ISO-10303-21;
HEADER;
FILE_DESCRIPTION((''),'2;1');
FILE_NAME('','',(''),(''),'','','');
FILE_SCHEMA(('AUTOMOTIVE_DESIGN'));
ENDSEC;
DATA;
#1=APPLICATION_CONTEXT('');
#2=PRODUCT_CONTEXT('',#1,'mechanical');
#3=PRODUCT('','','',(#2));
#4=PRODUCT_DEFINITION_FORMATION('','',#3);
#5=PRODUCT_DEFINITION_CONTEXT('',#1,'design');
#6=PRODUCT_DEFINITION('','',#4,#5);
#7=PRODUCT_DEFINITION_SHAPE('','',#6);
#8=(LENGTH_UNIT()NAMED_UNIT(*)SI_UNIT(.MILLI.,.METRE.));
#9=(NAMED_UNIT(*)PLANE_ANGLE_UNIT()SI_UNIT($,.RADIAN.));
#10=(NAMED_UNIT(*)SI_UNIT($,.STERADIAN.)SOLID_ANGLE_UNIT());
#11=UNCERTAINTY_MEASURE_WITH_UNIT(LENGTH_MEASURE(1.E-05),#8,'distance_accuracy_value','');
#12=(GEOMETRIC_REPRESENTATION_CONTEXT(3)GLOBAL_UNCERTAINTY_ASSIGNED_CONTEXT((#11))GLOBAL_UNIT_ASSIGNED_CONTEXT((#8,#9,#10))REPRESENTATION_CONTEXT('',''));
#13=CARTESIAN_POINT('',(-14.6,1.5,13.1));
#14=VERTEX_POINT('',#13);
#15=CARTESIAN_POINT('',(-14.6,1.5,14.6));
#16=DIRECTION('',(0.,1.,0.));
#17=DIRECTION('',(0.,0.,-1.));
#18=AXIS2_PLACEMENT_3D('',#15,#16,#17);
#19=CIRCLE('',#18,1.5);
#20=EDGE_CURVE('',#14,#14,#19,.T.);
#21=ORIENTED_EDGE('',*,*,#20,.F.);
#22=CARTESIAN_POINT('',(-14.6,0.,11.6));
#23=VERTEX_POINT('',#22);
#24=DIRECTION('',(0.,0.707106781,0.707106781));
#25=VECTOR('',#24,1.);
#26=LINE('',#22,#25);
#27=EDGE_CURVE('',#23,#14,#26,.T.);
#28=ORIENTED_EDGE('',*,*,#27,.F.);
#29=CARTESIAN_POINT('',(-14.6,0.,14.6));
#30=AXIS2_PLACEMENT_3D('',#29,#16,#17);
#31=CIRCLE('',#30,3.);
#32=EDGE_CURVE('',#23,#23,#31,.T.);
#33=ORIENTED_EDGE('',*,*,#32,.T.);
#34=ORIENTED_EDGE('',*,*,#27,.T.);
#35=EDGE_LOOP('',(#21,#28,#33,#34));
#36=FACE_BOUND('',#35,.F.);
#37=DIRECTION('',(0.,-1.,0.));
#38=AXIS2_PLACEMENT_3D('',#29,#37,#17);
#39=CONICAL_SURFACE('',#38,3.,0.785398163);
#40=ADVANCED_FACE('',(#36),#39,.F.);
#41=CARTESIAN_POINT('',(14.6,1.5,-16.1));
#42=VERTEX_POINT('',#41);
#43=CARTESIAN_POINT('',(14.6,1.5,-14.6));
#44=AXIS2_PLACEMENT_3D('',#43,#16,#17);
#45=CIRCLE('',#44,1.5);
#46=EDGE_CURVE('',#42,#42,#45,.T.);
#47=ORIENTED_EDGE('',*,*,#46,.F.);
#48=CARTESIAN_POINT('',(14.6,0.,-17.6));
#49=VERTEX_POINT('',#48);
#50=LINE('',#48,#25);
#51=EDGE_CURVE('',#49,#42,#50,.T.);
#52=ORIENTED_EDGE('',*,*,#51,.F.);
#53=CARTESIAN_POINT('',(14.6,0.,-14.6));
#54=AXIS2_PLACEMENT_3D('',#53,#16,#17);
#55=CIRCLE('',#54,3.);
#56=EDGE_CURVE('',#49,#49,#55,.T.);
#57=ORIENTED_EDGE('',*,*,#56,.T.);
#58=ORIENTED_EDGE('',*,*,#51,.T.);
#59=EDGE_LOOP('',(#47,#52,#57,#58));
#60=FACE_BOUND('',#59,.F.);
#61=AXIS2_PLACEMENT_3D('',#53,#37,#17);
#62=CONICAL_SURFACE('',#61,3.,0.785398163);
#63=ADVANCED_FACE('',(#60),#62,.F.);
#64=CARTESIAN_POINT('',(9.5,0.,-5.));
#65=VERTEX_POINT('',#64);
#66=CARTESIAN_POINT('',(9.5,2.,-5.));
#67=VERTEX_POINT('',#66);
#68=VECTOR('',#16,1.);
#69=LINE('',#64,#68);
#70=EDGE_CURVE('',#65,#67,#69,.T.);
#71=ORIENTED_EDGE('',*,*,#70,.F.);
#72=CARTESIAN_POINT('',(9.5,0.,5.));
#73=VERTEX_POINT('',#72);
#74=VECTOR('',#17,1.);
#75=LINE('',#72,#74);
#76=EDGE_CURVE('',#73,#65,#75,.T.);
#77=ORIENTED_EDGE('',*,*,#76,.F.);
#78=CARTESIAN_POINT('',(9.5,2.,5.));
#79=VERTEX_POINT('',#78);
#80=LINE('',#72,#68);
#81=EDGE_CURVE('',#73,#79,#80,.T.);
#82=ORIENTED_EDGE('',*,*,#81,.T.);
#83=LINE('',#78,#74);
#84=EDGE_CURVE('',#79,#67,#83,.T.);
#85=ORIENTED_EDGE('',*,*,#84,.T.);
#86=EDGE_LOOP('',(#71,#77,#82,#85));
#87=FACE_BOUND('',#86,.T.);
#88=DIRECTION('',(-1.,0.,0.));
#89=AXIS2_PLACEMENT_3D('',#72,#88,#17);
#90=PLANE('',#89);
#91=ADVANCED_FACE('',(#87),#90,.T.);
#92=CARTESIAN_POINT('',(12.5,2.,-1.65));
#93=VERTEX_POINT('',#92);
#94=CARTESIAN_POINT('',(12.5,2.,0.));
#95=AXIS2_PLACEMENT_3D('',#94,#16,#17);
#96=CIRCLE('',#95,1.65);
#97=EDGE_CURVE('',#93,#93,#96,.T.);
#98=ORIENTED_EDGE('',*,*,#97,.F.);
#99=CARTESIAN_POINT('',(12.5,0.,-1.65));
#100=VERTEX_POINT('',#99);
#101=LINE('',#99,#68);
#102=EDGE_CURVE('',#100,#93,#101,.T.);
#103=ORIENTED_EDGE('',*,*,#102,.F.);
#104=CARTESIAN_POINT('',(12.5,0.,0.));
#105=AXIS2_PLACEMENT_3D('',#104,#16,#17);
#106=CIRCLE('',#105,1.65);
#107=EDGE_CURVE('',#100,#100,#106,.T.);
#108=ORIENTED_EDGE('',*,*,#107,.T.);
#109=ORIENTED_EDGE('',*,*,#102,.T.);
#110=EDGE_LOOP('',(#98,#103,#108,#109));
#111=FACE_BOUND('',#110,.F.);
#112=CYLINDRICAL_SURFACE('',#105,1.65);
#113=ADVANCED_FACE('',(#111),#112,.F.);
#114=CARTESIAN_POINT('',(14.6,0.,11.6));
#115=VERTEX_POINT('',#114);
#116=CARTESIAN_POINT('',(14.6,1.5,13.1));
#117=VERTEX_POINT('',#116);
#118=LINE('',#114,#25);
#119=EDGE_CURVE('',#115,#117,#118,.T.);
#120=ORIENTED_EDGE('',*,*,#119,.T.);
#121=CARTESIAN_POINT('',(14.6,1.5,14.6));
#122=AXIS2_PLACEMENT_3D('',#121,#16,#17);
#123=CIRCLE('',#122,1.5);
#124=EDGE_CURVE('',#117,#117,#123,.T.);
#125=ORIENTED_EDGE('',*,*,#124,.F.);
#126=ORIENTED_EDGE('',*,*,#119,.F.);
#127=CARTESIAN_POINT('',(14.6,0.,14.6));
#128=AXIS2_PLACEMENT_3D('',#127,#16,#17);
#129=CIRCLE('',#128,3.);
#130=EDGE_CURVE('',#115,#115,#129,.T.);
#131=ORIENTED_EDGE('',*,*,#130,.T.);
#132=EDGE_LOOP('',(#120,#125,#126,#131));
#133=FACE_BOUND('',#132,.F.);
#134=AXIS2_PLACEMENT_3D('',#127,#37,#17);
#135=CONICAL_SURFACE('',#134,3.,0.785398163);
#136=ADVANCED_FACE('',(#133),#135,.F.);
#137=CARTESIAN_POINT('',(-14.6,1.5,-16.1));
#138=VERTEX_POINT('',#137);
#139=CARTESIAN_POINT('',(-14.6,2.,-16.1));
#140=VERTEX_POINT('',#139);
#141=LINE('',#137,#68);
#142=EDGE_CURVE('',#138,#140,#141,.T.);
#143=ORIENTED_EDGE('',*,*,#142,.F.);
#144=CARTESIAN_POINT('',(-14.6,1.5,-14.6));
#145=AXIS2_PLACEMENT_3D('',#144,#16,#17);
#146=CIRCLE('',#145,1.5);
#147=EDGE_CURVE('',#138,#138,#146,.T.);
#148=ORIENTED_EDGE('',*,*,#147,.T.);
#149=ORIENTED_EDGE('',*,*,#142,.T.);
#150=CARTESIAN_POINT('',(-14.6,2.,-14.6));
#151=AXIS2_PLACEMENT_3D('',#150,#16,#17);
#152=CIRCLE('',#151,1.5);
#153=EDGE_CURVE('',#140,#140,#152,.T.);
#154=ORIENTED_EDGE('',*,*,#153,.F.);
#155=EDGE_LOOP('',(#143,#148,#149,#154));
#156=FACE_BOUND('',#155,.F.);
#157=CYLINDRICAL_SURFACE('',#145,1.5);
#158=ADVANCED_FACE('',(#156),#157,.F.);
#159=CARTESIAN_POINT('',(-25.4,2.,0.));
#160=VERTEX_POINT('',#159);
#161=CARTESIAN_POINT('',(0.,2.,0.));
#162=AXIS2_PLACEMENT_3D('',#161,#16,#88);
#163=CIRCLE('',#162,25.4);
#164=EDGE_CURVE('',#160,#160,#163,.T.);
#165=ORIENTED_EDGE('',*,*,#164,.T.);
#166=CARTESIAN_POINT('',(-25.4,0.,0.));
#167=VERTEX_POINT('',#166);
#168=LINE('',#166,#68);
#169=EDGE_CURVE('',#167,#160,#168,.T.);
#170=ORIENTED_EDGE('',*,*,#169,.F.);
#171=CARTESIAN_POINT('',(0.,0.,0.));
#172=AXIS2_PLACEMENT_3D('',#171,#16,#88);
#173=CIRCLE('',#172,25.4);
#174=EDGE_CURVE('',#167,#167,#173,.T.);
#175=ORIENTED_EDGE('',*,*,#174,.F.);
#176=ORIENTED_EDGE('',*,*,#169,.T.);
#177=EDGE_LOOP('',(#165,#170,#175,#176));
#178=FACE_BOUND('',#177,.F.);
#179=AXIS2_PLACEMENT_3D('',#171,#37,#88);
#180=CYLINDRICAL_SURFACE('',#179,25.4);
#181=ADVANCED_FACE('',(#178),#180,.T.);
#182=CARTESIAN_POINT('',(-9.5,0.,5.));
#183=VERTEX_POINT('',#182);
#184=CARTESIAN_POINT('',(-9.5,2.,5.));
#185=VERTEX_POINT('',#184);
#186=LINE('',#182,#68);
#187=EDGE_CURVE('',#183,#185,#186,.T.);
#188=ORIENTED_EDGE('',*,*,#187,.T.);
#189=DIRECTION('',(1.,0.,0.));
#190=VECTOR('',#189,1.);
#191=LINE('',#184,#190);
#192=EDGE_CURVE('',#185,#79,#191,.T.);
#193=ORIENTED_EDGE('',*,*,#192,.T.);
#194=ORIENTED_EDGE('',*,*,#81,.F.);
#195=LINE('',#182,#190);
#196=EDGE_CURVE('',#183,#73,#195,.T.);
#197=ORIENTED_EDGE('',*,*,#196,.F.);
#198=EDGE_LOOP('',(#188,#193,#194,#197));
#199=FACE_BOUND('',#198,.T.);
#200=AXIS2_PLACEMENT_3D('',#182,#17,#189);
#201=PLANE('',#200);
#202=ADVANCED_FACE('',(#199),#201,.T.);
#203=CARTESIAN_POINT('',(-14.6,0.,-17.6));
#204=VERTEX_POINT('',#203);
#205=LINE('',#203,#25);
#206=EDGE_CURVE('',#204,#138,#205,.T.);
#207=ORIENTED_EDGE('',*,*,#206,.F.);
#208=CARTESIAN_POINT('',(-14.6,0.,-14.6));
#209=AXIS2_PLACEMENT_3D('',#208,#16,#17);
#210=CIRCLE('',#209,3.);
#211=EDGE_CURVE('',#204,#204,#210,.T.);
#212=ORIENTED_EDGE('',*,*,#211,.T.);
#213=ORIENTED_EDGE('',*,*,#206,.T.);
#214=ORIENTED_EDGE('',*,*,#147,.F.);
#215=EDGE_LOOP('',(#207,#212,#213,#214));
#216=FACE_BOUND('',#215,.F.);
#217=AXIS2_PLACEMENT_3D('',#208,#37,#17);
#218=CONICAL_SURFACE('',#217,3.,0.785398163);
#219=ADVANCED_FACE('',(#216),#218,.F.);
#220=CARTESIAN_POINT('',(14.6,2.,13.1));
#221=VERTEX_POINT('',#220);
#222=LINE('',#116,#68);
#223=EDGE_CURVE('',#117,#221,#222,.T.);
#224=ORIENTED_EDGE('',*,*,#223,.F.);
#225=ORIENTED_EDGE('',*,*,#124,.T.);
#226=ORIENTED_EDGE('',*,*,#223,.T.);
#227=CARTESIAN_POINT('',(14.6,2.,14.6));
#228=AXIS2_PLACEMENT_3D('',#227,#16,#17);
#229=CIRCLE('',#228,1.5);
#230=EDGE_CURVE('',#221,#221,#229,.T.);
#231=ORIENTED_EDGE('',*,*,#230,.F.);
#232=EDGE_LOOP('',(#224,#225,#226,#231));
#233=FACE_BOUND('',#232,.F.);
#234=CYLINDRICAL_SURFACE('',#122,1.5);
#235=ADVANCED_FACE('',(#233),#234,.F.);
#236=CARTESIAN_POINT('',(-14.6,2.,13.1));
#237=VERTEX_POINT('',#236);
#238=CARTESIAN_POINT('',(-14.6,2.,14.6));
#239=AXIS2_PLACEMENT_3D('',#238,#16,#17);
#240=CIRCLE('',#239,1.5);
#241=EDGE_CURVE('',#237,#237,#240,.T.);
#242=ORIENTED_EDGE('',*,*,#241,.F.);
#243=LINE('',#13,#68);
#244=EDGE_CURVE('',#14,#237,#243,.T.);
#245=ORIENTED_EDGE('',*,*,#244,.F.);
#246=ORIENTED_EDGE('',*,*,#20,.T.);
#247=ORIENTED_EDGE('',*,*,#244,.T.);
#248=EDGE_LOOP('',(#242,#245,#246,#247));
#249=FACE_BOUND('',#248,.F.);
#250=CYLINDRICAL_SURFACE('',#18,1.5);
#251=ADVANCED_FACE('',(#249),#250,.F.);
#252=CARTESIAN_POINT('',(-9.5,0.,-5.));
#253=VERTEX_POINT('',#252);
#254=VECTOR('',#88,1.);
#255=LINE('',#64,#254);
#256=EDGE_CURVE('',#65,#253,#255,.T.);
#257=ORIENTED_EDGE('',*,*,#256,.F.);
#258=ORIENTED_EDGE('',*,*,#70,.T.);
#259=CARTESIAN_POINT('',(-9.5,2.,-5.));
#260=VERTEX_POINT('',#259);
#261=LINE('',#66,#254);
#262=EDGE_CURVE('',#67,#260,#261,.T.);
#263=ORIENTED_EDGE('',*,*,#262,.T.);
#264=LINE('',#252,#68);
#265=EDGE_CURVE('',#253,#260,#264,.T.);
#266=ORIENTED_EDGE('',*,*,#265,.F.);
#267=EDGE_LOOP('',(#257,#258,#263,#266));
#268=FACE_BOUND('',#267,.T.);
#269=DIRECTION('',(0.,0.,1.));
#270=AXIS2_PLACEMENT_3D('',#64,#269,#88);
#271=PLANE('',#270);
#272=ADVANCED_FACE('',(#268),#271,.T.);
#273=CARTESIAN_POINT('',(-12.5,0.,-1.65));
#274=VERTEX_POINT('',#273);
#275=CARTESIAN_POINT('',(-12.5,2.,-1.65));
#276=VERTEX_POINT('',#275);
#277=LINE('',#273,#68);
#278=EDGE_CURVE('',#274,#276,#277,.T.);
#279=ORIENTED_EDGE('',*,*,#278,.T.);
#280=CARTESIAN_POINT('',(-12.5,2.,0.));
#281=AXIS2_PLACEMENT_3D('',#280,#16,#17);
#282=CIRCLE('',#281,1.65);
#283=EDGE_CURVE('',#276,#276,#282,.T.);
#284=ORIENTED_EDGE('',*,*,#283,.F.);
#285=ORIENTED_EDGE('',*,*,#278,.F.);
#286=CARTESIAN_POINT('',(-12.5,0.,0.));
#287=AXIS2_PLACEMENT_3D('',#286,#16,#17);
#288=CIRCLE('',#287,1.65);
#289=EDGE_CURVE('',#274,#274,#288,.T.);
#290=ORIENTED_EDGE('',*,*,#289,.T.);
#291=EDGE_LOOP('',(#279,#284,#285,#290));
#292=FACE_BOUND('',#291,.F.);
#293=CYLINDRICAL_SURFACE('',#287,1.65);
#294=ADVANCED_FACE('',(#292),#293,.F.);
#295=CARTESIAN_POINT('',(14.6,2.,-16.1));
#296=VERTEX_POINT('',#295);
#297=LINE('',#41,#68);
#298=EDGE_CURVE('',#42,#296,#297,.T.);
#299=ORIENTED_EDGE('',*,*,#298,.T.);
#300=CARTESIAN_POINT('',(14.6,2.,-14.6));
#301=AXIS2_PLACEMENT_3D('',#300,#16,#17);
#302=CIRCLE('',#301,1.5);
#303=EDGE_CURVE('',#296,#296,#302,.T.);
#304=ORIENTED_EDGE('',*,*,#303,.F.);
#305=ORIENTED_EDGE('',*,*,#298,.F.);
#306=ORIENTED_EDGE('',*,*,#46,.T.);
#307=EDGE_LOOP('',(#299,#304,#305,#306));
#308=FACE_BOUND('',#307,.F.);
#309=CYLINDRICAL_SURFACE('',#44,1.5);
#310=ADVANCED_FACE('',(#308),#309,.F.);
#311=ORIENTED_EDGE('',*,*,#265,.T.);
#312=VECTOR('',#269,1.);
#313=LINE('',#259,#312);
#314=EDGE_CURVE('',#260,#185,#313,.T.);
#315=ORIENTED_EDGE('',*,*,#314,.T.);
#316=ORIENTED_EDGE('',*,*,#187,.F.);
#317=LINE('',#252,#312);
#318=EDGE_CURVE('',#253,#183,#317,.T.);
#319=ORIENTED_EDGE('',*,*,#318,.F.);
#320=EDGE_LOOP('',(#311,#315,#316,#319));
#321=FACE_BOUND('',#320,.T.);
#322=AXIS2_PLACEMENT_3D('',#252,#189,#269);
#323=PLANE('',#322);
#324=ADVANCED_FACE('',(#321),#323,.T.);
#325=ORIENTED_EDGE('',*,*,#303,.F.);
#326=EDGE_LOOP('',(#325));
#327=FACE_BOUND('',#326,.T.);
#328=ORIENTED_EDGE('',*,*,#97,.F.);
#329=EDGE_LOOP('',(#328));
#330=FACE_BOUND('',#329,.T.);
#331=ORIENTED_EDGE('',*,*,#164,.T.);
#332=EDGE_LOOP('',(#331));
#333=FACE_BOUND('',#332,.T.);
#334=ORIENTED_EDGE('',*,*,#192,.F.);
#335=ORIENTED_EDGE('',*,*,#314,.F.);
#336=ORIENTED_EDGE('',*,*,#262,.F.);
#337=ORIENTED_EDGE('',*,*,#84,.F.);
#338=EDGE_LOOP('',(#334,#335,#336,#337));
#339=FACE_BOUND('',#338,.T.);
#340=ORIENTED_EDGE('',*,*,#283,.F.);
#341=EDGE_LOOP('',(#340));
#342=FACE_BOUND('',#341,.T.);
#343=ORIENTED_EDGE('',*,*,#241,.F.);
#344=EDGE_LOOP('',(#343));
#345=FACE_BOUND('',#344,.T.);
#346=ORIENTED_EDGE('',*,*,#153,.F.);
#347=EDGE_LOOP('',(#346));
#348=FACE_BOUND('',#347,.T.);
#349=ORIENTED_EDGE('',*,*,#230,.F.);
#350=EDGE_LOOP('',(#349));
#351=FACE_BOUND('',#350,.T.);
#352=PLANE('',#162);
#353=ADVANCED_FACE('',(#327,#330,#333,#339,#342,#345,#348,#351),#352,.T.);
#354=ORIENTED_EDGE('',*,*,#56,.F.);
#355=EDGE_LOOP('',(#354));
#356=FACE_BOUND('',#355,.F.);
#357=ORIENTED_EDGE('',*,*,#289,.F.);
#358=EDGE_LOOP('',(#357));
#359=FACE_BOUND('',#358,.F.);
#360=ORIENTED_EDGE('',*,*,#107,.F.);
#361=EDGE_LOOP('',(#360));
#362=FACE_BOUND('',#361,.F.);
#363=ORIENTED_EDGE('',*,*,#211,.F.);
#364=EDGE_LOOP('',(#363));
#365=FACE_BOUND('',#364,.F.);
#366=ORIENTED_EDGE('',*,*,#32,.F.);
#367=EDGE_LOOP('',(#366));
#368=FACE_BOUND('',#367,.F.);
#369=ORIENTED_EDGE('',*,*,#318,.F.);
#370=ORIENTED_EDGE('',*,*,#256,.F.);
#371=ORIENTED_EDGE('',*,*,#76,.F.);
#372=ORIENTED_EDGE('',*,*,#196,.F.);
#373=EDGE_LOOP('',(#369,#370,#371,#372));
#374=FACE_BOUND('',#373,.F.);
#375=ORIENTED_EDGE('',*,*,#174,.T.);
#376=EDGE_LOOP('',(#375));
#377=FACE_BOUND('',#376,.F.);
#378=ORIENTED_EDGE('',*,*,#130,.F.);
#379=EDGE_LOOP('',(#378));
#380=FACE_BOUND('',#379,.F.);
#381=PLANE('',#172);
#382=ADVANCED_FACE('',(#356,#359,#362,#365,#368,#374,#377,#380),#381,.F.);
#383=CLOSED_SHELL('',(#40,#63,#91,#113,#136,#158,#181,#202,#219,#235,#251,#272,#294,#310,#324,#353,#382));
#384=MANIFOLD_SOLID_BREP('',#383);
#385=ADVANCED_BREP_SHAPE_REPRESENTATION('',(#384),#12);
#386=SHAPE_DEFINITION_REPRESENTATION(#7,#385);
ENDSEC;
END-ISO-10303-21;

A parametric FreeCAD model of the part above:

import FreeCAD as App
import Part
import Sketcher

V = App.Vector


def add_polygon(sketch, points):
    """Adds a closed chain of lines whose ends are joined by coincident constraints."""
    first, n = sketch.GeometryCount, len(points)
    for a, b in zip(points, points[1:] + points[:1]):
        sketch.addGeometry(Part.LineSegment(App.Vector(*a, 0), App.Vector(*b, 0)), False)
    for i in range(n):
        sketch.addConstraint(Sketcher.Constraint("Coincident", first + i, 2, first + (i + 1) % n, 1))

doc = App.newDocument("Part")
body = doc.addObject("PartDesign::Body", "Body")

# Sketch on XZ plane
sketch1 = body.newObject("Sketcher::SketchObject", "Sketch")
sketch1.AttachmentSupport = (doc.getObject("XZ_Plane"), [""])
sketch1.MapMode = "FlatFace"
sketch1.addGeometry(Part.Circle(V(0, 0, 0), V(0, 0, 1), 25.4), False)
sketch1.addConstraint(Sketcher.Constraint("Coincident", 0, 3, -1, 1))
sketch1.addConstraint(Sketcher.Constraint("Diameter", 0, 50.8))
pad1 = body.newObject("PartDesign::Pad", "Pad")
pad1.Profile = sketch1
pad1.Length = 2
pad1.Reversed = True

# Sketch on XZ plane
sketch2 = body.newObject("Sketcher::SketchObject", "Sketch001")
sketch2.AttachmentSupport = (doc.getObject("XZ_Plane"), [""])
sketch2.MapMode = "FlatFace"
sketch2.addGeometry(Part.Circle(V(-14.6, 14.6, 0), V(0, 0, 1), 1.5), False)
sketch2.addGeometry(Part.Circle(V(14.6, 14.6, 0), V(0, 0, 1), 1.5), False)
sketch2.addGeometry(Part.Circle(V(14.6, -14.6, 0), V(0, 0, 1), 1.5), False)
sketch2.addGeometry(Part.Circle(V(-14.6, -14.6, 0), V(0, 0, 1), 1.5), False)
sketch2.addConstraint(Sketcher.Constraint("Equal", 0, 1))
sketch2.addConstraint(Sketcher.Constraint("Equal", 1, 2))
sketch2.addConstraint(Sketcher.Constraint("Equal", 2, 3))
sketch2.addConstraint(Sketcher.Constraint("Symmetric", 0, 3, 2, 3, -1, 1))
sketch2.addConstraint(Sketcher.Constraint("Symmetric", 1, 3, 3, 3, -1, 1))
sketch2.addConstraint(Sketcher.Constraint("Symmetric", 0, 3, 1, 3, -2))
sketch2.addConstraint(Sketcher.Constraint("Diameter", 0, 3.0))
sketch2.addConstraint(Sketcher.Constraint("DistanceX", 0, 3, -1, 1, 14.6))
sketch2.addConstraint(Sketcher.Constraint("DistanceY", -1, 1, 0, 3, 14.6))
doc.recompute()
hole = body.newObject("PartDesign::Hole", "Hole")
hole.Profile = sketch2
hole.ThreadType = "None"
hole.Diameter = 3
hole.DepthType = "ThroughAll"
hole.HoleCutType = "Countersink"
hole.HoleCutDiameter = 6
hole.HoleCutCountersinkAngle = 90

# Sketch on XZ plane
sketch3 = body.newObject("Sketcher::SketchObject", "Sketch002")
sketch3.AttachmentSupport = (doc.getObject("XZ_Plane"), [""])
sketch3.MapMode = "FlatFace"
add_polygon(sketch3, [(9.5, 5), (-9.5, 5), (-9.5, -5), (9.5, -5)])  # lines 0-3
sketch3.addConstraint(Sketcher.Constraint("Horizontal", 0))
sketch3.addConstraint(Sketcher.Constraint("Vertical", 1))
sketch3.addConstraint(Sketcher.Constraint("Horizontal", 2))
sketch3.addConstraint(Sketcher.Constraint("Vertical", 3))
sketch3.addConstraint(Sketcher.Constraint("Symmetric", 0, 2, 2, 2, -1, 1))
sketch3.addConstraint(Sketcher.Constraint("DistanceX", 0, 2, 0, 1, 19.0))
sketch3.addConstraint(Sketcher.Constraint("DistanceY", 1, 2, 1, 1, 10.0))
pocket1 = body.newObject("PartDesign::Pocket", "Pocket")
pocket1.Profile = sketch3
pocket1.Length = 2

# Sketch on XZ plane
sketch4 = body.newObject("Sketcher::SketchObject", "Sketch003")
sketch4.AttachmentSupport = (doc.getObject("XZ_Plane"), [""])
sketch4.MapMode = "FlatFace"
sketch4.addGeometry(Part.Circle(V(-12.5, 0, 0), V(0, 0, 1), 1.65), False)
sketch4.addGeometry(Part.Circle(V(12.5, 0, 0), V(0, 0, 1), 1.65), False)
sketch4.addConstraint(Sketcher.Constraint("Equal", 0, 1))
sketch4.addConstraint(Sketcher.Constraint("Symmetric", 0, 3, 1, 3, -1, 1))
sketch4.addConstraint(Sketcher.Constraint("PointOnObject", 0, 3, -1))
sketch4.addConstraint(Sketcher.Constraint("Diameter", 0, 3.3))
sketch4.addConstraint(Sketcher.Constraint("DistanceX", 0, 3, 1, 3, 25.0))
doc.recompute()
hole2 = body.newObject("PartDesign::Hole", "Hole001")
hole2.Profile = sketch4
hole2.ThreadType = "None"
hole2.Diameter = 3.3
hole2.DepthType = "ThroughAll"

doc.recompute()
